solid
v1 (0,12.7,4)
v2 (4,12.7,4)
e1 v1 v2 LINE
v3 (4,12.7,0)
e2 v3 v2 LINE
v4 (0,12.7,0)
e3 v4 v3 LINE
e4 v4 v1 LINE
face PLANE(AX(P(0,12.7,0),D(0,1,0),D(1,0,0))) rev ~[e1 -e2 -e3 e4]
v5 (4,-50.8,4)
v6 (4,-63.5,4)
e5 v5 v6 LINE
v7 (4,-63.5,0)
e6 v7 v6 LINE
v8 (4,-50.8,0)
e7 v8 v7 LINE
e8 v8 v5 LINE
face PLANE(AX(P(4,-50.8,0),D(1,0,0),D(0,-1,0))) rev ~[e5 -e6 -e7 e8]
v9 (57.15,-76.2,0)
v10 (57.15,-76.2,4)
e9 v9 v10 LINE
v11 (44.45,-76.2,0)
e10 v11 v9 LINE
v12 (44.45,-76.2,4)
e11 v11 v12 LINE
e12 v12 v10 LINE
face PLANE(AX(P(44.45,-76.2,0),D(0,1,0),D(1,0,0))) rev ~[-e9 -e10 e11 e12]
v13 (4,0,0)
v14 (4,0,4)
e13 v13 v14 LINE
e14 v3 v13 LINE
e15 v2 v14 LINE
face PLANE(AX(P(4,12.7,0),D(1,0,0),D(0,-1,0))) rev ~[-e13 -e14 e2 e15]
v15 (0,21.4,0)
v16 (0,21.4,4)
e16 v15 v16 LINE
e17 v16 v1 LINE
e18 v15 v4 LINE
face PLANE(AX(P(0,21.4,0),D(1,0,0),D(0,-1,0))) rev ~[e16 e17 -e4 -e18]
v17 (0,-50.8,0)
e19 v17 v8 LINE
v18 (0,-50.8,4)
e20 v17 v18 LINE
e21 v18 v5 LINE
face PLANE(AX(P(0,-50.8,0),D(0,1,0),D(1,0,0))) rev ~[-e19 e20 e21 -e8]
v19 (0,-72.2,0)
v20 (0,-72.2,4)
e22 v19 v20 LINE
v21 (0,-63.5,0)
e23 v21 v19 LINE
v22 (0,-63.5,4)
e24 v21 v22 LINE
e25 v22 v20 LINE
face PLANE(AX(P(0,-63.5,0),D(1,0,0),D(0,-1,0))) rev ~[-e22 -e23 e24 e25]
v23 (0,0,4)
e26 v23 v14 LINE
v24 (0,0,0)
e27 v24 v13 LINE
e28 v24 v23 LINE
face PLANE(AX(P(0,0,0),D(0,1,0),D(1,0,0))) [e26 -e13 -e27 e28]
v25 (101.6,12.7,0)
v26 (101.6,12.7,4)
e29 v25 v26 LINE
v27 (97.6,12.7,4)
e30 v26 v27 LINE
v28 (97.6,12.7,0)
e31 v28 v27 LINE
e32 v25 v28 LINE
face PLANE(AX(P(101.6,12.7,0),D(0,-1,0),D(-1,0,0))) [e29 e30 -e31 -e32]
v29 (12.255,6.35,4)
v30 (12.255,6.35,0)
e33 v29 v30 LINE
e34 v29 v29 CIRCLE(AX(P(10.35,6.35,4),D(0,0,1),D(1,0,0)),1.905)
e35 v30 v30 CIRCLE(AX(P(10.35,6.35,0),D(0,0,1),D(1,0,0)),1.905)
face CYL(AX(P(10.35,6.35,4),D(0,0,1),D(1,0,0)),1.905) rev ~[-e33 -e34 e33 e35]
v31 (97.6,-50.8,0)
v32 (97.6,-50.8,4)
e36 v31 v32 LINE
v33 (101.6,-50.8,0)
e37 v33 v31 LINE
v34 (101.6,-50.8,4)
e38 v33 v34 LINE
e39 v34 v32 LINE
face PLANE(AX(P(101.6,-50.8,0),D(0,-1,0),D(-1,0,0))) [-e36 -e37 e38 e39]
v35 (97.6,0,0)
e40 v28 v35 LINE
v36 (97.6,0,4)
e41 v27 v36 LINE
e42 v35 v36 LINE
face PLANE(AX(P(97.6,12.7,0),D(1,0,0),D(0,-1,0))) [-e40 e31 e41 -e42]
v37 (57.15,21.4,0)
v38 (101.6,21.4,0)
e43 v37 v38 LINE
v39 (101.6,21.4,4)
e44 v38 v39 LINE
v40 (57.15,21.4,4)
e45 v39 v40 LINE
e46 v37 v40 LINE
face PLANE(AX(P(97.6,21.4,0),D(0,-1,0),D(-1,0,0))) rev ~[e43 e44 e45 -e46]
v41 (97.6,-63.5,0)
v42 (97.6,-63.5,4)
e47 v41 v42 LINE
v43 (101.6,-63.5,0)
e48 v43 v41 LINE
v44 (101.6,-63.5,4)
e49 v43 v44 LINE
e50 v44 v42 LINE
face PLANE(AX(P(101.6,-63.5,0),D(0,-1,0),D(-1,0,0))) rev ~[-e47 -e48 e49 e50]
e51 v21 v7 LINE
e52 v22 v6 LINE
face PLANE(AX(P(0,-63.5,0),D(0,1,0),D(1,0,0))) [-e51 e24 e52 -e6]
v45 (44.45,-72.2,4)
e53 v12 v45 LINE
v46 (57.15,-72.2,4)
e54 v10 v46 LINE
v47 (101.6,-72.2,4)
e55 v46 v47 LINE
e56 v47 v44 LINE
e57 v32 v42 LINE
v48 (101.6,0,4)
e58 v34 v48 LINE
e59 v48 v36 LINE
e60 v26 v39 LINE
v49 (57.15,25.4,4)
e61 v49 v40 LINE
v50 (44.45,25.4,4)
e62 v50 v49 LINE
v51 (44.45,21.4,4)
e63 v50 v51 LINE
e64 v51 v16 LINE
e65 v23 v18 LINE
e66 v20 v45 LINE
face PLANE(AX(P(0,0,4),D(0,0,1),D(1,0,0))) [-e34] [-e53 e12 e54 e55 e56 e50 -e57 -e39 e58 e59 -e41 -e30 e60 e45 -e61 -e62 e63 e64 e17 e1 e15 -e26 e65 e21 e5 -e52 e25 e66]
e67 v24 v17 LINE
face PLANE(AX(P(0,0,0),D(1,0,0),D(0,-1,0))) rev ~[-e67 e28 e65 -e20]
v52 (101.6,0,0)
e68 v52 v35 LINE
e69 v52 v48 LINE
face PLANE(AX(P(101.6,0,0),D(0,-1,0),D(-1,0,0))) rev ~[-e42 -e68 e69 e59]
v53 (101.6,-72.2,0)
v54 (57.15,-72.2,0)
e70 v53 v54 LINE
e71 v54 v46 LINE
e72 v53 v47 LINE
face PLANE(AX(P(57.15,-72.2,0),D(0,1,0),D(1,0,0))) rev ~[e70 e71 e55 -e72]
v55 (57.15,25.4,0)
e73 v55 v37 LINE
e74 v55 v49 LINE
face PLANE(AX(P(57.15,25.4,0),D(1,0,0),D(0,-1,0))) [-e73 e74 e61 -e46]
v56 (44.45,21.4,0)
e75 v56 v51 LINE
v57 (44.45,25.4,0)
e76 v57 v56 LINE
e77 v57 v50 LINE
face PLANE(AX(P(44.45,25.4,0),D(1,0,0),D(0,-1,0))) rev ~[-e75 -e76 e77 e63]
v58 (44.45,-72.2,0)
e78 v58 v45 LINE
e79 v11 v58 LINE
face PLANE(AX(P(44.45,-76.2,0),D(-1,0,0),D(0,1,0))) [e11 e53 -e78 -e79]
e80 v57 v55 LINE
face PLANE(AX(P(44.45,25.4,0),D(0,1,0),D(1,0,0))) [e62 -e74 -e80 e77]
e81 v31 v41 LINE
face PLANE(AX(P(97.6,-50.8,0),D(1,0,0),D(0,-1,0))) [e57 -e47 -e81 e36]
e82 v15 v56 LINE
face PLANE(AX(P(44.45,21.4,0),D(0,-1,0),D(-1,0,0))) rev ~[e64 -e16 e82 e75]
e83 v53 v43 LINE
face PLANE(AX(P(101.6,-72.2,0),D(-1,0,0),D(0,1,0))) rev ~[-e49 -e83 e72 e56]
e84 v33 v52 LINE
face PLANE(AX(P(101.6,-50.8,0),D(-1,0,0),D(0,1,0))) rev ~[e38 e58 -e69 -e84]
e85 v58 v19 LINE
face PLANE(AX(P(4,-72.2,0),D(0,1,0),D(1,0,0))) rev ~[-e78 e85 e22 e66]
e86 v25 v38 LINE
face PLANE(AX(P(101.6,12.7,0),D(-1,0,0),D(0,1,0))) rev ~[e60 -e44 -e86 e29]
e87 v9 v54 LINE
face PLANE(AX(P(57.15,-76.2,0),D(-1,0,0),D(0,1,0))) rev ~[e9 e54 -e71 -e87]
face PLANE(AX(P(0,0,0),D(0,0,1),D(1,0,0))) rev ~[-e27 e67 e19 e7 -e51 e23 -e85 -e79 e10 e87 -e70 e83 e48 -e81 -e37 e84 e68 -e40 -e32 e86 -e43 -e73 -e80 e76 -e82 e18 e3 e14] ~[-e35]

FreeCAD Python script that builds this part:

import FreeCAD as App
import Part
import Sketcher
from FreeCAD import Vector
Q = App.Units.Quantity


def add_polygon(sketch, points):
    """Adds a closed chain of lines whose ends are joined by coincident constraints."""
    first, n = sketch.GeometryCount, len(points)
    for a, b in zip(points, points[1:] + points[:1]):
        sketch.addGeometry(Part.LineSegment(App.Vector(*a, 0), App.Vector(*b, 0)), False)
    for i in range(n):
        sketch.addConstraint(Sketcher.Constraint("Coincident", first + i, 2, first + (i + 1) % n, 1))

doc = App.newDocument("Part")
body = doc.addObject("PartDesign::Body", "Body")

sketch1 = doc.addObject("Sketcher::SketchObject", "Sketch")
body.addObject(sketch1)
sketch1.AttachmentSupport = (doc.XY_Plane, [""])
sketch1.MapMode = "FlatFace"
add_polygon(sketch1, [(4, 0), (0, 0), (0, -50.8), (4, -50.8), (4, -63.5), (0, -63.5), (0, -72.2), (44.45, -72.2), (44.45, -76.2), (57.15, -76.2), (57.15, -72.2), (101.6, -72.2), (101.6, -63.5), (97.6, -63.5), (97.6, -50.8), (101.6, -50.8), (101.6, 0), (97.6, 0), (97.6, 12.7), (101.6, 12.7), (101.6, 21.4), (57.15, 21.4), (57.15, 25.4), (44.45, 25.4), (44.45, 21.4), (0, 21.4), (0, 12.7), (4, 12.7)])
sketch1.addConstraint([
    Sketcher.Constraint("Horizontal", 0),
    Sketcher.Constraint("Vertical", 1),
    Sketcher.Constraint("Horizontal", 2),
    Sketcher.Constraint("Vertical", 3),
    Sketcher.Constraint("Horizontal", 4),
    Sketcher.Constraint("Vertical", 5),
    Sketcher.Constraint("Horizontal", 6),
    Sketcher.Constraint("Vertical", 7),
    Sketcher.Constraint("Horizontal", 8),
    Sketcher.Constraint("Vertical", 9),
    Sketcher.Constraint("Horizontal", 10),
    Sketcher.Constraint("Vertical", 11),
    Sketcher.Constraint("Horizontal", 12),
    Sketcher.Constraint("Vertical", 13),
    Sketcher.Constraint("Horizontal", 14),
    Sketcher.Constraint("Vertical", 15),
    Sketcher.Constraint("Horizontal", 16),
    Sketcher.Constraint("Vertical", 17),
    Sketcher.Constraint("Horizontal", 18),
    Sketcher.Constraint("Vertical", 19),
    Sketcher.Constraint("Horizontal", 20),
    Sketcher.Constraint("Vertical", 21),
    Sketcher.Constraint("Horizontal", 22),
    Sketcher.Constraint("Vertical", 23),
    Sketcher.Constraint("Horizontal", 24),
    Sketcher.Constraint("Vertical", 25),
    Sketcher.Constraint("Horizontal", 26),
    Sketcher.Constraint("Vertical", 27),
    Sketcher.Constraint("Coincident", 0, 2, -1, 1),
    Sketcher.Constraint("PointOnObject", 4, 2, -2),
    Sketcher.Constraint("PointOnObject", 15, 2, -1),
    Sketcher.Constraint("PointOnObject", 24, 2, -2),
    Sketcher.Constraint("Horizontal", 6, 2, 9, 2),
    Sketcher.Constraint("Horizontal", 4, 2, 11, 2),
    Sketcher.Constraint("Horizontal", 2, 2, 13, 2),
    Sketcher.Constraint("Horizontal", 20, 2, 23, 2),
    Sketcher.Constraint("Horizontal", 18, 2, 25, 2),
    Sketcher.Constraint("Vertical", 11, 2, 14, 2),
    Sketcher.Constraint("Vertical", 13, 2, 16, 2),
    Sketcher.Constraint("Vertical", 15, 2, 18, 2),
    Sketcher.Constraint("Vertical", 9, 2, 20, 2),
    Sketcher.Constraint("Vertical", 7, 2, 22, 2),
    Sketcher.Constraint("Vertical", 3, 2, 26, 2),
    Sketcher.Constraint("Equal", 6, 10),
    Sketcher.Constraint("Equal", 4, 12),
    Sketcher.Constraint("Equal", 22, 3),
    Sketcher.Constraint("Equal", 26, 7),
    Sketcher.Constraint("Equal", 13, 17),
    Sketcher.Constraint("Equal", 11, 19),
    Sketcher.Constraint("Equal", 9, 21),
    Sketcher.Constraint("DistanceY", 1, 2, 1, 1, Q("2 in")),
    Sketcher.Constraint("DistanceX", 8, 1, 8, 2, Q("0.5 in")),
    Sketcher.Constraint("DistanceY", 7, 2, -1, 1, Q("3 in")),
    Sketcher.Constraint("DistanceX", -1, 1, 10, 2, Q("4 in")),
    Sketcher.Constraint("DistanceX", 0, 2, 0, 1, 4.0),
])
pad1 = doc.addObject("PartDesign::Pad", "Pad")
body.addObject(pad1)
pad1.Profile = sketch1
pad1.Length = 4

sketch2 = doc.addObject("Sketcher::SketchObject", "Sketch001")
body.addObject(sketch2)
sketch2.AttachmentSupport = (doc.XY_Plane, [""])
sketch2.MapMode = "FlatFace"
sketch2.AttachmentOffset = App.Placement(Vector(0, 0, 4), App.Rotation())
sketch2.addGeometry(Part.Circle(Vector(10.35, 6.35, 0), Vector(0, 0, 1), 1.905), False)
sketch2.addConstraint([
    Sketcher.Constraint("Diameter", 0, Q("0.15 in")),
    Sketcher.Constraint("DistanceY", -1, 1, 0, 3, Q("0.25 in")),
    Sketcher.Constraint("DistanceX", -1, 1, 0, 3, 10.35),
])
pocket1 = doc.addObject("PartDesign::Pocket", "Pocket")
body.addObject(pocket1)
pocket1.Profile = sketch2
pocket1.Type = "ThroughAll"

doc.recompute()
